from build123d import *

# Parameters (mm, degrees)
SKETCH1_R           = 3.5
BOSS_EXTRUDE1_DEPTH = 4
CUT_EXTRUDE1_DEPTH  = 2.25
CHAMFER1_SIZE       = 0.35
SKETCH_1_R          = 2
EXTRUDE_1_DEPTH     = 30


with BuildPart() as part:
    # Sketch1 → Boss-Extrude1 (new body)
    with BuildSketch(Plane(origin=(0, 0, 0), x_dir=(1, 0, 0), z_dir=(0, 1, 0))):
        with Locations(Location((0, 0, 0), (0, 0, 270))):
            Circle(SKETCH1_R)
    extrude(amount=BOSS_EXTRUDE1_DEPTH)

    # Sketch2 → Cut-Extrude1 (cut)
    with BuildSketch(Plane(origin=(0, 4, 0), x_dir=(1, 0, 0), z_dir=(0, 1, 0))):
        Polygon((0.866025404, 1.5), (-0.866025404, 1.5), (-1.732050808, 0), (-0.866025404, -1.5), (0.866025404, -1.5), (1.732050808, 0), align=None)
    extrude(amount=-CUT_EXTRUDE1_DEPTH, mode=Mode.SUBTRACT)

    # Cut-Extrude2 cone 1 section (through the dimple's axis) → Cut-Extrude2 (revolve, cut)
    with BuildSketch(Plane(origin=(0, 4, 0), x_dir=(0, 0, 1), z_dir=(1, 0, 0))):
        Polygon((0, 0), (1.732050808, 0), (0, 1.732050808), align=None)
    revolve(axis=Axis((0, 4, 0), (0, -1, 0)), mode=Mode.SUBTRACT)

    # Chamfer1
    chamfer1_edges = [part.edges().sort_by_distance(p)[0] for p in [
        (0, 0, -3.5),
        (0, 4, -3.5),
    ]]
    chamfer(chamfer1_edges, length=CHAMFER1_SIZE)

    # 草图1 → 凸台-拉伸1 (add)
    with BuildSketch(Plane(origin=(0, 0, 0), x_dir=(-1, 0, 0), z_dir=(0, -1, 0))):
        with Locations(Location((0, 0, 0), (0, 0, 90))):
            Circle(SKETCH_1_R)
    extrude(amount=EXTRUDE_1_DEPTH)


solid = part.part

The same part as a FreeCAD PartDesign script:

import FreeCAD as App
import Part
import Sketcher

V = App.Vector
Q = App.Units.Quantity


def edges_at(feature, points):
    """Names of the edges that pass closest to the given points."""
    edges = feature.Shape.Edges
    near = lambda p: min(range(len(edges)), key=lambda i: edges[i].distToShape(Part.Vertex(*p))[0])
    return sorted({f"Edge{near(p) + 1}" for p in points})


def add_polygon(sketch, points):
    """Adds a closed chain of lines whose ends are joined by coincident constraints."""
    first, n = sketch.GeometryCount, len(points)
    for a, b in zip(points, points[1:] + points[:1]):
        sketch.addGeometry(Part.LineSegment(App.Vector(*a, 0), App.Vector(*b, 0)), False)
    for i in range(n):
        sketch.addConstraint(Sketcher.Constraint("Coincident", first + i, 2, first + (i + 1) % n, 1))

doc = App.newDocument("Part")
body = doc.addObject("PartDesign::Body", "Body")

# Sketch on XZ plane
sketch1 = body.newObject("Sketcher::SketchObject", "Sketch")
sketch1.AttachmentSupport = (doc.getObject("XZ_Plane"), [""])
sketch1.MapMode = "FlatFace"
sketch1.addGeometry(Part.Circle(V(0, 0, 0), V(0, 0, 1), 3.5), False)
sketch1.addConstraint(Sketcher.Constraint("Coincident", 0, 3, -1, 1))
sketch1.addConstraint(Sketcher.Constraint("Diameter", 0, 7.0))
pad1 = body.newObject("PartDesign::Pad", "Pad")
pad1.Profile = sketch1
pad1.Length = 4
pad1.Reversed = True

# Sketch on XZ plane
sketch2 = body.newObject("Sketcher::SketchObject", "Sketch001")
sketch2.AttachmentSupport = (doc.getObject("XZ_Plane"), [""])
sketch2.MapMode = "FlatFace"
sketch2.AttachmentOffset = App.Placement(V(0, 0, -4), App.Rotation())
add_polygon(sketch2, [(0.866025, -1.5), (-0.866025, -1.5), (-1.732051, 0), (-0.866025, 1.5), (0.866025, 1.5), (1.732051, 0)])  # lines 0-5
sketch2.addConstraint(Sketcher.Constraint("Horizontal", 0))
sketch2.addConstraint(Sketcher.Constraint("Horizontal", 3))
sketch2.addConstraint(Sketcher.Constraint("Symmetric", 0, 2, 3, 2, -1, 1))
sketch2.addConstraint(Sketcher.Constraint("Symmetric", 1, 2, 4, 2, -1, 1))
sketch2.addConstraint(Sketcher.Constraint("PointOnObject", 1, 2, -1))
sketch2.addConstraint(Sketcher.Constraint("Parallel", 2, 5))
sketch2.addConstraint(Sketcher.Constraint("Vertical", 0, 2, 2, 2))
sketch2.addConstraint(Sketcher.Constraint("Angle", 1, Q("120 deg")))
sketch2.addConstraint(Sketcher.Constraint("DistanceY", 0, 2, 2, 2, 3.0))
sketch2.addConstraint(Sketcher.Constraint("DistanceX", 0, 2, 0, 1, 1.732051))
pocket1 = body.newObject("PartDesign::Pocket", "Pocket")
pocket1.Profile = sketch2
pocket1.Length = 2.25
pocket1.Reversed = True

# Sketch on YZ plane
sketch3 = body.newObject("Sketcher::SketchObject", "Sketch002")
sketch3.AttachmentSupport = (doc.getObject("YZ_Plane"), [""])
sketch3.MapMode = "FlatFace"
add_polygon(sketch3, [(4, 0), (4, 1.732051), (2.267949, 0)])  # lines 0-2
sketch3.addConstraint(Sketcher.Constraint("Vertical", 0))
sketch3.addConstraint(Sketcher.Constraint("Horizontal", 2))
sketch3.addConstraint(Sketcher.Constraint("PointOnObject", 1, 2, -1))
sketch3.addConstraint(Sketcher.Constraint("Equal", 2, 0))
sketch3.addConstraint(Sketcher.Constraint("DistanceX", -1, 1, 0, 2, 4.0))
sketch3.addConstraint(Sketcher.Constraint("DistanceX", 2, 1, 2, 2, 1.732051))
groove = body.newObject("PartDesign::Groove", "Groove")
groove.Profile = sketch3
groove.ReferenceAxis = (sketch3, ["H_Axis"])
groove.Angle = 360
doc.recompute()

chamfer = body.newObject("PartDesign::Chamfer", "Chamfer")
chamfer.Base = (groove, edges_at(groove, [(0, 0, -3.5), (0, 4, -3.5)]))
chamfer.Size = 0.35

# Sketch on XZ plane
sketch4 = body.newObject("Sketcher::SketchObject", "Sketch003")
sketch4.AttachmentSupport = (doc.getObject("XZ_Plane"), [""])
sketch4.MapMode = "FlatFace"
sketch4.addGeometry(Part.Circle(V(0, 0, 0), V(0, 0, 1), 2), False)
sketch4.addConstraint(Sketcher.Constraint("Coincident", 0, 3, -1, 1))
sketch4.addConstraint(Sketcher.Constraint("Diameter", 0, 4.0))
pad2 = body.newObject("PartDesign::Pad", "Pad001")
pad2.Profile = sketch4
pad2.Length = 30

doc.recompute()
